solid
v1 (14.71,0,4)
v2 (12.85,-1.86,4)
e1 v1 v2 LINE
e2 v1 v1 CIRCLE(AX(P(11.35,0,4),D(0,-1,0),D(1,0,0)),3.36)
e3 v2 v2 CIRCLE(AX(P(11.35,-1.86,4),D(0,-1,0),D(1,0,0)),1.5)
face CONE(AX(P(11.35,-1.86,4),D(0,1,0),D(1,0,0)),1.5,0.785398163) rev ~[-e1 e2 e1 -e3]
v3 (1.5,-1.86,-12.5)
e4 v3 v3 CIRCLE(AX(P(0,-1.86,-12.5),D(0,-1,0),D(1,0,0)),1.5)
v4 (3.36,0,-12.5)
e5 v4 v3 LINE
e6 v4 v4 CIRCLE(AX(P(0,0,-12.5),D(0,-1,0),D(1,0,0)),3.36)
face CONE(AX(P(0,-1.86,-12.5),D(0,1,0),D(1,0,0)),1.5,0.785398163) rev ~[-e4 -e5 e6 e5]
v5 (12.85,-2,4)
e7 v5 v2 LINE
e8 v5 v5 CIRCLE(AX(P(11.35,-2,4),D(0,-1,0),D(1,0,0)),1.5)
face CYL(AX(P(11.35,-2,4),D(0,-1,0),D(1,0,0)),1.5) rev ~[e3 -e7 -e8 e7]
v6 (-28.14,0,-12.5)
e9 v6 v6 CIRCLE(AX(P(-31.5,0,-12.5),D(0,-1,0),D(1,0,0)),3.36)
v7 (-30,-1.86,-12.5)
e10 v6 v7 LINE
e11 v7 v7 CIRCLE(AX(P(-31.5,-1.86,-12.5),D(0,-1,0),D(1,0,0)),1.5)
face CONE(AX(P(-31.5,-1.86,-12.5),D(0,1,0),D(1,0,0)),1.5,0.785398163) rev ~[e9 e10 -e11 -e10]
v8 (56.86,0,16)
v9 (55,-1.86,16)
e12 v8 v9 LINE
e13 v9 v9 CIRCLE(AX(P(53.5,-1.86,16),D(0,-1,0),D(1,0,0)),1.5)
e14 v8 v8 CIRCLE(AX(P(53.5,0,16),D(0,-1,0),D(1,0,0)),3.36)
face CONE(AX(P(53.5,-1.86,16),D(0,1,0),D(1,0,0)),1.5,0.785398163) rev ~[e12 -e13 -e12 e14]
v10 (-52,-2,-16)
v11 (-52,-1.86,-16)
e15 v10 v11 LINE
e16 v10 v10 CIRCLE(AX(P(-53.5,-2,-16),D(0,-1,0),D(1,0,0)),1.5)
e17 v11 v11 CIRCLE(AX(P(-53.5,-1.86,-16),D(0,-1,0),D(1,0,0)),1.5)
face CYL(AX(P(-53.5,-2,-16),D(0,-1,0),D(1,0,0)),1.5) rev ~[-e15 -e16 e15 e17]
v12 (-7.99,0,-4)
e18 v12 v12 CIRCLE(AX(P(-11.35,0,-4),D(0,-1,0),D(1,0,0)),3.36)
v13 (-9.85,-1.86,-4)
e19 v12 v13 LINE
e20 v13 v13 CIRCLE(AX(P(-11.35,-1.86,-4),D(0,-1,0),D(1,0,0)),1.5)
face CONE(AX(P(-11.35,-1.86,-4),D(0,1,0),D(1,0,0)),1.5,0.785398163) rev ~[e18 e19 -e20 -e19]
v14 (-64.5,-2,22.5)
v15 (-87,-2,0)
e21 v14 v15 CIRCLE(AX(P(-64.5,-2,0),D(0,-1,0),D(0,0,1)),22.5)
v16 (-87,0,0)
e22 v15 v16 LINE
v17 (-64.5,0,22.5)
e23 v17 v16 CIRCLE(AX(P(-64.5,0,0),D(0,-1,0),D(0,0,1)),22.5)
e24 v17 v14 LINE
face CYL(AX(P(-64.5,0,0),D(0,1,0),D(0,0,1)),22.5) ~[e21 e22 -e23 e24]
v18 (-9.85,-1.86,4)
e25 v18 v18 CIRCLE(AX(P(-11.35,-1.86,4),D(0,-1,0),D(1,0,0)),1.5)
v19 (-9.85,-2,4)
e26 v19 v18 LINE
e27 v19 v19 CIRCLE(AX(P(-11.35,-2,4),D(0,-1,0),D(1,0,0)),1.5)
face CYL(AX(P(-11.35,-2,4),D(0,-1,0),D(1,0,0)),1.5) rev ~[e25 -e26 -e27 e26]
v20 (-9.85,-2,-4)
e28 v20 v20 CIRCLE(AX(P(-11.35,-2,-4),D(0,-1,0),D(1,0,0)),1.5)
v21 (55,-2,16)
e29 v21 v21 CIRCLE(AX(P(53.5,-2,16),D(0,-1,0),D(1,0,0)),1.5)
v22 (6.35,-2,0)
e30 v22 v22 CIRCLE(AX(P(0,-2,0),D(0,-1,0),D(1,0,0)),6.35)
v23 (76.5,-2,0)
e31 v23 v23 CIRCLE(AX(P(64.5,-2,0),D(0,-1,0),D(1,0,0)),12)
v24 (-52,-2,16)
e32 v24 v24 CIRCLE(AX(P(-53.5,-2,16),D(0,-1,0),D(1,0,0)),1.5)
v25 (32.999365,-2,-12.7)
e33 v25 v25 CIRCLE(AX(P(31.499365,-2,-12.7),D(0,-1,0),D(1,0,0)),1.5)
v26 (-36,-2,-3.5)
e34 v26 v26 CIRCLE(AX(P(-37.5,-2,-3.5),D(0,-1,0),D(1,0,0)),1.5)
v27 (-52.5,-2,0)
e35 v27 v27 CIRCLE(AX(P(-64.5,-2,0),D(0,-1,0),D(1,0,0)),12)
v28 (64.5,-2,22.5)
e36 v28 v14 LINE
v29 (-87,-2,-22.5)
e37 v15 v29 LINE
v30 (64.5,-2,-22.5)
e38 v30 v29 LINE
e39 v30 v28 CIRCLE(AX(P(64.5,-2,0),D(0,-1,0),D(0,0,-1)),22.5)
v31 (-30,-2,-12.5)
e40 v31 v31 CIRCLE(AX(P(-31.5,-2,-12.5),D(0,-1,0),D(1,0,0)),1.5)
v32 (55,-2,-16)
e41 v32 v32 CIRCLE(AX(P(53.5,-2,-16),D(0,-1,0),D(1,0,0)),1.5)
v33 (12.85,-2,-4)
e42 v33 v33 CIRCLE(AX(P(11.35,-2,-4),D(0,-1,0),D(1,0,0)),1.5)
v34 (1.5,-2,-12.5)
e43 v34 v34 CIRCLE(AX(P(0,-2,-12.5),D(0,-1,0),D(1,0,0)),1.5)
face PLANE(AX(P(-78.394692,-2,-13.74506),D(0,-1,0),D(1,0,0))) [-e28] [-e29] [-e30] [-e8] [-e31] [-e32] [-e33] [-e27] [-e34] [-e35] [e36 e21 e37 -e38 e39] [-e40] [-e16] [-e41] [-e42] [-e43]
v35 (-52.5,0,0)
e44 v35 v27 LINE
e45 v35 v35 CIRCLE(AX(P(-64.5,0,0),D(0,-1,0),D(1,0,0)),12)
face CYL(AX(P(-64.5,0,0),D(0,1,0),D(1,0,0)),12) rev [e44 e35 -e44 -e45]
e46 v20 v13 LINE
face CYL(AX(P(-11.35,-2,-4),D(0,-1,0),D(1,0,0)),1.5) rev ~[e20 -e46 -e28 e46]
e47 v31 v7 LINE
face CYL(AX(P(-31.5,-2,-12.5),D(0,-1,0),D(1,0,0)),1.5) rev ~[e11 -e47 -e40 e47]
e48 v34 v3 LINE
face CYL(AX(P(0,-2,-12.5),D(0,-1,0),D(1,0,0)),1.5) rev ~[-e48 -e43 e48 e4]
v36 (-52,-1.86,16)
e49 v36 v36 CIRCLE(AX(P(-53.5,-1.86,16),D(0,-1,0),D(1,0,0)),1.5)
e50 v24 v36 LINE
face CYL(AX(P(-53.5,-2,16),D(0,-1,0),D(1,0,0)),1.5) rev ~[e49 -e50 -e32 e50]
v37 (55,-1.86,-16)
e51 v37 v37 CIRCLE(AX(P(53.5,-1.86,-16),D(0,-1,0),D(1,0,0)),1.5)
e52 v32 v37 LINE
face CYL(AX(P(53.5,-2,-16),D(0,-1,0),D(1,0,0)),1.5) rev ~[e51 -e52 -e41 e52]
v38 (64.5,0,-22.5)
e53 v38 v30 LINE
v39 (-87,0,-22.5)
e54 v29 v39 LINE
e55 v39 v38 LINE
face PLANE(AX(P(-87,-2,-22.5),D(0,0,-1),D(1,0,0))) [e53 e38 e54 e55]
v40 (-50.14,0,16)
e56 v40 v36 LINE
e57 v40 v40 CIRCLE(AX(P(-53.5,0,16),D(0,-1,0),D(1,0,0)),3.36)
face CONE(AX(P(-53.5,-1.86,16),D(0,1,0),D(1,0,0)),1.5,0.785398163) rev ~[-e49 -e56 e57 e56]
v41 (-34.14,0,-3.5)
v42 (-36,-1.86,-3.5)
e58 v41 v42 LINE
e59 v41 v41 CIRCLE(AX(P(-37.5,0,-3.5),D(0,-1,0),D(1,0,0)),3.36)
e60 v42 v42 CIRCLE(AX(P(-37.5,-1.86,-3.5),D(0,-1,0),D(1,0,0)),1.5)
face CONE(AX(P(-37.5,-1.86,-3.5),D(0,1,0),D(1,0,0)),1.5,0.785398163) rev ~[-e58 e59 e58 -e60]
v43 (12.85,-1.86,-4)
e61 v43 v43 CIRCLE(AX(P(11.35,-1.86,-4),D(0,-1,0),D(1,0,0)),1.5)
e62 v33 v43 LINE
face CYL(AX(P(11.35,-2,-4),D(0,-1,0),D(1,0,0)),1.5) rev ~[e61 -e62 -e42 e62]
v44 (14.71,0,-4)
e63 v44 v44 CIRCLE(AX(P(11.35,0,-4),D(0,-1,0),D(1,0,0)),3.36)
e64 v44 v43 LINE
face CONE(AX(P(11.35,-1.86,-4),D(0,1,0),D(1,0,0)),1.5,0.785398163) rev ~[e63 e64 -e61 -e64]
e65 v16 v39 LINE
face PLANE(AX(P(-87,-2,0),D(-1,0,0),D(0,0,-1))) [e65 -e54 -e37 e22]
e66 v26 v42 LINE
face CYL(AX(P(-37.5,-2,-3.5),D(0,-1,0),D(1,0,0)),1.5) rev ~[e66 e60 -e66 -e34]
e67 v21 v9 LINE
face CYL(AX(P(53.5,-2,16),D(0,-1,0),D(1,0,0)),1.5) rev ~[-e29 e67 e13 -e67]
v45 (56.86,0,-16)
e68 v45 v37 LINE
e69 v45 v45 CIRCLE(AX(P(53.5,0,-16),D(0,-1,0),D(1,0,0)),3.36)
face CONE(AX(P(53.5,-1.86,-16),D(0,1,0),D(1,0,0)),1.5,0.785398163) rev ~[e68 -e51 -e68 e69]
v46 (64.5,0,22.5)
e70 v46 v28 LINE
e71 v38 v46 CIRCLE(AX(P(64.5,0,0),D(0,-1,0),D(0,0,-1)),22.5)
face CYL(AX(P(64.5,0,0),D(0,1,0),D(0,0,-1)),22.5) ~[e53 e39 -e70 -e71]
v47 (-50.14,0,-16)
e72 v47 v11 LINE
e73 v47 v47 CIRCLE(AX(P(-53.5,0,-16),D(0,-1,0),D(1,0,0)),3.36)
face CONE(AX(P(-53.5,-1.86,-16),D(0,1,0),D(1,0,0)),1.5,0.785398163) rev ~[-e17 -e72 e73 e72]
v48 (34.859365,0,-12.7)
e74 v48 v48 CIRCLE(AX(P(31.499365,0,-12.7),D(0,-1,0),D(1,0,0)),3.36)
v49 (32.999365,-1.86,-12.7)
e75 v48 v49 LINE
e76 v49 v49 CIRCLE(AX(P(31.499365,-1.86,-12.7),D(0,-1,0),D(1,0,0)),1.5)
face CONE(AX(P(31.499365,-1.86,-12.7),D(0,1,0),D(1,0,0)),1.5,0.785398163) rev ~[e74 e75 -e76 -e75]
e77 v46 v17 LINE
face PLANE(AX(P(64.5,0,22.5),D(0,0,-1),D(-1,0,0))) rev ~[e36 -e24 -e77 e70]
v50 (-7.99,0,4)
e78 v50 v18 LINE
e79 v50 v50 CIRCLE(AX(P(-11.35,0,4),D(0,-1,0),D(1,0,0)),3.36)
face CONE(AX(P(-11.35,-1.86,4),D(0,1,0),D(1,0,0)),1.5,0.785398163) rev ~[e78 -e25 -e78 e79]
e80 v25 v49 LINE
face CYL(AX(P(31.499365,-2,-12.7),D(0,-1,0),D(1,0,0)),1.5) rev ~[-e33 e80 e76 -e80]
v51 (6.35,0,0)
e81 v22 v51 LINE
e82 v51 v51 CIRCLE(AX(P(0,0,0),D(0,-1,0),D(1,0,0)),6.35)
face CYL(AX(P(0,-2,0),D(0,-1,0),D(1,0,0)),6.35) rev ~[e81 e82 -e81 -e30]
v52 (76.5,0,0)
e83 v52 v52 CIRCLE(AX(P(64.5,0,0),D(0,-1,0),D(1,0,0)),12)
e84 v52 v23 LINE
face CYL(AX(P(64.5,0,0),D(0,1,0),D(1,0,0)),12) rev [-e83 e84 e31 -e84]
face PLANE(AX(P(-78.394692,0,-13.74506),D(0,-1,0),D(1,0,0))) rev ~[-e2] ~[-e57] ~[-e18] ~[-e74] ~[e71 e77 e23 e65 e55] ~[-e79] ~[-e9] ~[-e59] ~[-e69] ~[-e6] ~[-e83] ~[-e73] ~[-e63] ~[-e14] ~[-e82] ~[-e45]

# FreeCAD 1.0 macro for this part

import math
import FreeCAD as App
import Part
import Sketcher
Q = App.Units.Quantity


def edges_at(feature, points):
    """Names of the edges that pass closest to the given points."""
    edges = feature.Shape.Edges
    near = lambda p: min(range(len(edges)), key=lambda i: edges[i].distToShape(Part.Vertex(*p))[0])
    return sorted({f"Edge{near(p) + 1}" for p in points})


def add_polygon(sketch, points):
    """Adds a closed chain of lines whose ends are joined by coincident constraints."""
    first, n = sketch.GeometryCount, len(points)
    for a, b in zip(points, points[1:] + points[:1]):
        sketch.addGeometry(Part.LineSegment(App.Vector(*a, 0), App.Vector(*b, 0)), False)
    for i in range(n):
        sketch.addConstraint(Sketcher.Constraint("Coincident", first + i, 2, first + (i + 1) % n, 1))

doc = App.newDocument("Part")
body = doc.addObject("PartDesign::Body", "Body")

# Sketch on XZ plane
sketch1 = body.newObject("Sketcher::SketchObject", "Sketch")
sketch1.AttachmentSupport = (doc.getObject("XZ_Plane"), [""])
sketch1.MapMode = "FlatFace"
sketch1.addGeometry(Part.ArcOfCircle(Part.Circle(App.Vector(64, 0, 0), App.Vector(0, 0, 1), 22), math.radians(-90), math.radians(90)), False)
sketch1.addGeometry(Part.LineSegment(App.Vector(64, 22, 0), App.Vector(-64, 22, 0)), False)
sketch1.addGeometry(Part.ArcOfCircle(Part.Circle(App.Vector(-64, 0, 0), App.Vector(0, 0, 1), 22), math.radians(90), math.radians(270)), False)
sketch1.addGeometry(Part.LineSegment(App.Vector(-64, -22, 0), App.Vector(64, -22, 0)), False)
sketch1.addGeometry(Part.Circle(App.Vector(-64, 0, 0), App.Vector(0, 0, 1), 12), False)
sketch1.addGeometry(Part.Circle(App.Vector(64, 0, 0), App.Vector(0, 0, 1), 12), False)
sketch1.addConstraint(Sketcher.Constraint("Tangent", 0, 2, 1, 1))
sketch1.addConstraint(Sketcher.Constraint("Tangent", 1, 2, 2, 1))
sketch1.addConstraint(Sketcher.Constraint("Tangent", 2, 2, 3, 1))
sketch1.addConstraint(Sketcher.Constraint("Tangent", 3, 2, 0, 1))
sketch1.addConstraint(Sketcher.Constraint("Horizontal", 1))
sketch1.addConstraint(Sketcher.Constraint("Horizontal", 3))
sketch1.addConstraint(Sketcher.Constraint("Coincident", 4, 3, 2, 3))
sketch1.addConstraint(Sketcher.Constraint("Coincident", 5, 3, 0, 3))
sketch1.addConstraint(Sketcher.Constraint("Equal", 4, 5))
sketch1.addConstraint(Sketcher.Constraint("Symmetric", 0, 3, 2, 3, -1, 1))
sketch1.addConstraint(Sketcher.Constraint("Diameter", 4, Q("24 mm")))
sketch1.addConstraint(Sketcher.Constraint("Radius", 0, Q("22.5 mm")))
sketch1.addConstraint(Sketcher.Constraint("DistanceX", 1, 2, 1, 1, Q("129 mm")))
pad1 = body.newObject("PartDesign::Pad", "Pad")
pad1.Profile = sketch1
pad1.Length = 2

# Sketch on XZ plane
sketch2 = body.newObject("Sketcher::SketchObject", "Sketch001")
sketch2.AttachmentSupport = (doc.getObject("XZ_Plane"), [""])
sketch2.MapMode = "FlatFace"
sketch2.AttachmentOffset = App.Placement(App.Vector(0, 0, 2), App.Rotation())
add_polygon(sketch2, [(-87, -22), (-64, -22), (-64, -17), (-71, -15), (-78, -9), (-81, 0), (-87, 0)])  # lines 0-6
sketch2.addConstraint(Sketcher.Constraint("Horizontal", 0))
sketch2.addConstraint(Sketcher.Constraint("Vertical", 1))
sketch2.addConstraint(Sketcher.Constraint("Horizontal", 5))
sketch2.addConstraint(Sketcher.Constraint("Vertical", 6))
sketch2.addConstraint(Sketcher.Constraint("PointOnObject", 4, 2, -1))
sketch2.addConstraint(Sketcher.Constraint("Equal", 0, 6))
sketch2.addConstraint(Sketcher.Constraint("DistanceX", 0, 1, 0, 2, Q("22.5 mm")))
sketch2.addConstraint(Sketcher.Constraint("DistanceX", 5, 2, -1, 1, Q("87 mm")))
sketch2.addConstraint(Sketcher.Constraint("Distance", 2, Q("6.61123 mm")))
sketch2.addConstraint(Sketcher.Constraint("Distance", 4, Q("9.816132 mm")))
sketch2.addConstraint(Sketcher.Constraint("DistanceX", 5, 2, 5, 1, Q("6.122808 mm")))
sketch2.addConstraint(Sketcher.Constraint("DistanceY", 1, 1, 1, 2, Q("5.068642 mm")))
sketch2.addConstraint(Sketcher.Constraint("DistanceX", 2, 2, -1, 1, Q("70.548259 mm")))
sketch2.addConstraint(Sketcher.Constraint("DistanceY", 2, 2, 3, 2, Q("5.298651 mm")))
pad2 = body.newObject("PartDesign::Pad", "Pad001")
pad2.Profile = sketch2
pad2.Length = 2
pad2.Reversed = True

# Sketch on XZ plane
sketch3 = body.newObject("Sketcher::SketchObject", "Sketch002")
sketch3.AttachmentSupport = (doc.getObject("XZ_Plane"), [""])
sketch3.MapMode = "FlatFace"
sketch3.AttachmentOffset = App.Placement(App.Vector(0, 0, 2), App.Rotation())
sketch3.addGeometry(Part.Circle(App.Vector(-53.5, 16, 0), App.Vector(0, 0, 1), 1.5), False)
sketch3.addGeometry(Part.Circle(App.Vector(-53.5, -16, 0), App.Vector(0, 0, 1), 1.5), False)
sketch3.addGeometry(Part.Circle(App.Vector(53.5, 16, 0), App.Vector(0, 0, 1), 1.5), False)
sketch3.addGeometry(Part.Circle(App.Vector(53.5, -16, 0), App.Vector(0, 0, 1), 1.5), False)
sketch3.addConstraint(Sketcher.Constraint("Equal", 0, 1))
sketch3.addConstraint(Sketcher.Constraint("Equal", 1, 2))
sketch3.addConstraint(Sketcher.Constraint("Equal", 2, 3))
sketch3.addConstraint(Sketcher.Constraint("Symmetric", 1, 3, 2, 3, -1, 1))
sketch3.addConstraint(Sketcher.Constraint("Symmetric", 0, 3, 3, 3, -1, 1))
sketch3.addConstraint(Sketcher.Constraint("Symmetric", 0, 3, 2, 3, -2))
sketch3.addConstraint(Sketcher.Constraint("Diameter", 0, Q("3 mm")))
sketch3.addConstraint(Sketcher.Constraint("DistanceY", -1, 1, 0, 3, Q("16 mm")))
sketch3.addConstraint(Sketcher.Constraint("DistanceX", 0, 3, 2, 3, Q("107 mm")))
pocket1 = body.newObject("PartDesign::Pocket", "Pocket")
pocket1.Profile = sketch3
pocket1.Length = 25

# Sketch on XZ plane
sketch4 = body.newObject("Sketcher::SketchObject", "Sketch003")
sketch4.AttachmentSupport = (doc.getObject("XZ_Plane"), [""])
sketch4.MapMode = "FlatFace"
sketch4.AttachmentOffset = App.Placement(App.Vector(0, 0, 2), App.Rotation())
sketch4.addGeometry(Part.Circle(App.Vector(0, 0, 0), App.Vector(0, 0, 1), 6), False)
sketch4.addConstraint(Sketcher.Constraint("Coincident", 0, 3, -1, 1))
sketch4.addConstraint(Sketcher.Constraint("Diameter", 0, Q("12.7 mm")))
pocket2 = body.newObject("PartDesign::Pocket", "Pocket001")
pocket2.Profile = sketch4
pocket2.Length = 25

# Sketch on XZ plane
sketch5 = body.newObject("Sketcher::SketchObject", "Sketch004")
sketch5.AttachmentSupport = (doc.getObject("XZ_Plane"), [""])
sketch5.MapMode = "FlatFace"
sketch5.AttachmentOffset = App.Placement(App.Vector(0, 0, 2), App.Rotation())
sketch5.addGeometry(Part.Circle(App.Vector(-11.3, 4, 0), App.Vector(0, 0, 1), 1.5), False)
sketch5.addGeometry(Part.Circle(App.Vector(-11.3, -4, 0), App.Vector(0, 0, 1), 1.5), False)
sketch5.addGeometry(Part.Circle(App.Vector(11.3, 4, 0), App.Vector(0, 0, 1), 1.5), False)
sketch5.addGeometry(Part.Circle(App.Vector(11.3, -4, 0), App.Vector(0, 0, 1), 1.5), False)
sketch5.addConstraint(Sketcher.Constraint("Equal", 0, 1))
sketch5.addConstraint(Sketcher.Constraint("Equal", 1, 2))
sketch5.addConstraint(Sketcher.Constraint("Equal", 2, 3))
sketch5.addConstraint(Sketcher.Constraint("Symmetric", 1, 3, 2, 3, -1, 1))
sketch5.addConstraint(Sketcher.Constraint("Symmetric", 0, 3, 3, 3, -1, 1))
sketch5.addConstraint(Sketcher.Constraint("Symmetric", 0, 3, 2, 3, -2))
sketch5.addConstraint(Sketcher.Constraint("Diameter", 0, Q("3 mm")))
sketch5.addConstraint(Sketcher.Constraint("DistanceY", -1, 1, 0, 3, Q("4 mm")))
sketch5.addConstraint(Sketcher.Constraint("DistanceX", 0, 3, 2, 3, Q("22.7 mm")))
pocket3 = body.newObject("PartDesign::Pocket", "Pocket002")
pocket3.Profile = sketch5
pocket3.Length = 25

# Sketch on XZ plane
sketch6 = body.newObject("Sketcher::SketchObject", "Sketch005")
sketch6.AttachmentSupport = (doc.getObject("XZ_Plane"), [""])
sketch6.MapMode = "FlatFace"
sketch6.AttachmentOffset = App.Placement(App.Vector(0, 0, 2), App.Rotation())
sketch6.addGeometry(Part.Circle(App.Vector(0, -12.5, 0), App.Vector(0, 0, 1), 1.5), False)
sketch6.addGeometry(Part.Circle(App.Vector(31.5, -12.7, 0), App.Vector(0, 0, 1), 1.5), False)
sketch6.addGeometry(Part.Circle(App.Vector(-31.5, -12.5, 0), App.Vector(0, 0, 1), 1.5), False)
sketch6.addGeometry(Part.Circle(App.Vector(-37.5, -3.5, 0), App.Vector(0, 0, 1), 1.5), False)
sketch6.addConstraint(Sketcher.Constraint("Equal", 0, 1))
sketch6.addConstraint(Sketcher.Constraint("Equal", 1, 2))
sketch6.addConstraint(Sketcher.Constraint("Equal", 2, 3))
sketch6.addConstraint(Sketcher.Constraint("PointOnObject", 0, 3, -2))
sketch6.addConstraint(Sketcher.Constraint("Horizontal", 0, 3, 2, 3))
sketch6.addConstraint(Sketcher.Constraint("Diameter", 0, Q("3 mm")))
sketch6.addConstraint(Sketcher.Constraint("DistanceX", 3, 3, 2, 3, Q("6 mm")))
sketch6.addConstraint(Sketcher.Constraint("DistanceY", 2, 3, 3, 3, Q("9 mm")))
sketch6.addConstraint(Sketcher.Constraint("DistanceY", 0, 3, -1, 1, Q("12.5 mm")))
sketch6.addConstraint(Sketcher.Constraint("DistanceY", 1, 3, -1, 1, Q("12.7 mm")))
sketch6.addConstraint(Sketcher.Constraint("DistanceX", 2, 3, -1, 1, Q("31.5 mm")))
sketch6.addConstraint(Sketcher.Constraint("DistanceX", -1, 1, 1, 3, Q("31.499365 mm")))
pocket4 = body.newObject("PartDesign::Pocket", "Pocket003")
pocket4.Profile = sketch6
pocket4.Length = 25
doc.recompute()

chamfer = body.newObject("PartDesign::Chamfer", "Chamfer")
chamfer.Base = (pocket4, edges_at(pocket4, [
    (-55, 0, -16),
    (-33, 0, -12.5),
    (-55, 0, 16),
    (-12.85, 0, -4),
    (-12.85, 0, 4),
    (-1.5, 0, -12.5),
    (9.85, 0, -4),
    (9.85, 0, 4),
    (29.999, 0, -12.7),
    (52, 0, -16),
    (52, 0, 16),
    (-39, 0, -3.5),
]))
chamfer.Size = 1.86

doc.recompute()
